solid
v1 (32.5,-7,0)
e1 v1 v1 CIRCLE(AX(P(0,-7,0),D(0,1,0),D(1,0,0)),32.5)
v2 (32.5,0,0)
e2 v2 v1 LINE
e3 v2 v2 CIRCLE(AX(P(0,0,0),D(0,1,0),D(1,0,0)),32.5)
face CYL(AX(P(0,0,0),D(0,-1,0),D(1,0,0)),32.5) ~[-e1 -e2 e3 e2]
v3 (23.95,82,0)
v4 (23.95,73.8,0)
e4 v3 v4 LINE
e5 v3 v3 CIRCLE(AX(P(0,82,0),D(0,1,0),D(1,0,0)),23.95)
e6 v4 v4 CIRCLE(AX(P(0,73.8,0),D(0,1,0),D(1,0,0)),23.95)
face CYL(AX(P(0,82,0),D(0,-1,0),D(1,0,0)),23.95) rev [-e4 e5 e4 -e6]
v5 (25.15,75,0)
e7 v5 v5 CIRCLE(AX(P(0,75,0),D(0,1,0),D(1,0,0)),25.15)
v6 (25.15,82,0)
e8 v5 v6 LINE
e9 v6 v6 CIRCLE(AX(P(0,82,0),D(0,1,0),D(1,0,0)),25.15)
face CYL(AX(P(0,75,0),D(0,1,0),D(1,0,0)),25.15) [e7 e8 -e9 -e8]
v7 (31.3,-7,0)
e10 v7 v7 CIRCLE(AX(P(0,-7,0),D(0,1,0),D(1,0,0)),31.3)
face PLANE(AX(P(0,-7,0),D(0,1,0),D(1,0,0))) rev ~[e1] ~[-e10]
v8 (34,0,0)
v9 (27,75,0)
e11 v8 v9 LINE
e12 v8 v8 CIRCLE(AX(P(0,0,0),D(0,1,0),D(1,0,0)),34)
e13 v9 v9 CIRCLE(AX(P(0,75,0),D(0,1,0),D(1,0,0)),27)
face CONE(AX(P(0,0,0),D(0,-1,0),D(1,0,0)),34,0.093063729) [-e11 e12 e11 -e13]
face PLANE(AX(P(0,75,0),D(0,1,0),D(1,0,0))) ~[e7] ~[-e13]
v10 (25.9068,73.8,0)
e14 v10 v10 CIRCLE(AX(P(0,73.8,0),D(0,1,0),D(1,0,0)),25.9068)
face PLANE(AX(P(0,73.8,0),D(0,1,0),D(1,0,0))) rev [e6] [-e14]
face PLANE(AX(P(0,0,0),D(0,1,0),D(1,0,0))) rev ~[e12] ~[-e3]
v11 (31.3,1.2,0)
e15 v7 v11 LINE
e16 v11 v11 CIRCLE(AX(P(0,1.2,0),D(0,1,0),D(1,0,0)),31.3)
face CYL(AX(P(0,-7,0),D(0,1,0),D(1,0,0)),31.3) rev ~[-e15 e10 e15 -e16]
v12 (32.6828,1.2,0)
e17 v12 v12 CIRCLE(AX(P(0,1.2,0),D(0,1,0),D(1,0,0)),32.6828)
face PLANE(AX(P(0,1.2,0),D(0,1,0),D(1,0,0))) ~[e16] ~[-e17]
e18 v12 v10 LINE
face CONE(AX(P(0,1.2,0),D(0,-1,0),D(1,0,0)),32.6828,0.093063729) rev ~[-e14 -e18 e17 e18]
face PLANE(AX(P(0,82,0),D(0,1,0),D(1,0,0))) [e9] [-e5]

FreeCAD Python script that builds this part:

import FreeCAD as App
import Part
import Sketcher
Q = App.Units.Quantity


def add_polygon(sketch, points):
    """Adds a closed chain of lines whose ends are joined by coincident constraints."""
    first, n = sketch.GeometryCount, len(points)
    for a, b in zip(points, points[1:] + points[:1]):
        sketch.addGeometry(Part.LineSegment(App.Vector(*a, 0), App.Vector(*b, 0)), False)
    for i in range(n):
        sketch.addConstraint(Sketcher.Constraint("Coincident", first + i, 2, first + (i + 1) % n, 1))

doc = App.newDocument("Part")
body = doc.addObject("PartDesign::Body", "Body")

# Sketch on XY plane
sketch1 = body.newObject("Sketcher::SketchObject", "Sketch")
sketch1.AttachmentSupport = (doc.getObject("XY_Plane"), [""])
sketch1.MapMode = "FlatFace"
add_polygon(sketch1, [(27, 75), (25.1, 75), (25.1, 82), (23.9, 82), (23.9, 73.8), (25.9, 73.8), (32.7, 1.2), (31.3, 1.2), (31.3, -7), (32.5, -7), (32.5, 0), (34, 0)])  # lines 0-11
sketch1.addConstraint([
    Sketcher.Constraint("Horizontal", 0),
    Sketcher.Constraint("Vertical", 1),
    Sketcher.Constraint("Horizontal", 2),
    Sketcher.Constraint("Vertical", 3),
    Sketcher.Constraint("Horizontal", 4),
    Sketcher.Constraint("Horizontal", 6),
    Sketcher.Constraint("Vertical", 7),
    Sketcher.Constraint("Horizontal", 8),
    Sketcher.Constraint("Vertical", 9),
    Sketcher.Constraint("Horizontal", 10),
    Sketcher.Constraint("PointOnObject", 9, 2, -1),
    Sketcher.Constraint("Parallel", 5, 11),
    Sketcher.Constraint("Equal", 2, 8),
    Sketcher.Constraint("Equal", 3, 7),
    Sketcher.Constraint("Equal", 1, 9),
    Sketcher.Constraint("DistanceY", 1, 1, 1, 2, Q("7 mm")),
    Sketcher.Constraint("DistanceX", 2, 2, 2, 1, Q("1.2 mm")),
    Sketcher.Constraint("DistanceY", -1, 1, 0, 2, Q("75 mm")),
    Sketcher.Constraint("DistanceX", -1, 1, 10, 2, Q("34 mm")),
    Sketcher.Constraint("DistanceX", -1, 1, 11, 2, Q("27 mm")),
    Sketcher.Constraint("DistanceY", -1, 1, 5, 2, Q("1.2 mm")),
    Sketcher.Constraint("DistanceX", -1, 1, 8, 2, Q("32.5 mm")),
    Sketcher.Constraint("DistanceX", -1, 1, 0, 2, Q("25.15 mm")),
    Sketcher.Constraint("DistanceX", 4, 1, 4, 2, Q("1.9568 mm")),
])
revolution = body.newObject("PartDesign::Revolution", "Revolution")
revolution.Profile = sketch1
revolution.ReferenceAxis = (sketch1, ["V_Axis"])
revolution.Angle = 360

doc.recompute()
